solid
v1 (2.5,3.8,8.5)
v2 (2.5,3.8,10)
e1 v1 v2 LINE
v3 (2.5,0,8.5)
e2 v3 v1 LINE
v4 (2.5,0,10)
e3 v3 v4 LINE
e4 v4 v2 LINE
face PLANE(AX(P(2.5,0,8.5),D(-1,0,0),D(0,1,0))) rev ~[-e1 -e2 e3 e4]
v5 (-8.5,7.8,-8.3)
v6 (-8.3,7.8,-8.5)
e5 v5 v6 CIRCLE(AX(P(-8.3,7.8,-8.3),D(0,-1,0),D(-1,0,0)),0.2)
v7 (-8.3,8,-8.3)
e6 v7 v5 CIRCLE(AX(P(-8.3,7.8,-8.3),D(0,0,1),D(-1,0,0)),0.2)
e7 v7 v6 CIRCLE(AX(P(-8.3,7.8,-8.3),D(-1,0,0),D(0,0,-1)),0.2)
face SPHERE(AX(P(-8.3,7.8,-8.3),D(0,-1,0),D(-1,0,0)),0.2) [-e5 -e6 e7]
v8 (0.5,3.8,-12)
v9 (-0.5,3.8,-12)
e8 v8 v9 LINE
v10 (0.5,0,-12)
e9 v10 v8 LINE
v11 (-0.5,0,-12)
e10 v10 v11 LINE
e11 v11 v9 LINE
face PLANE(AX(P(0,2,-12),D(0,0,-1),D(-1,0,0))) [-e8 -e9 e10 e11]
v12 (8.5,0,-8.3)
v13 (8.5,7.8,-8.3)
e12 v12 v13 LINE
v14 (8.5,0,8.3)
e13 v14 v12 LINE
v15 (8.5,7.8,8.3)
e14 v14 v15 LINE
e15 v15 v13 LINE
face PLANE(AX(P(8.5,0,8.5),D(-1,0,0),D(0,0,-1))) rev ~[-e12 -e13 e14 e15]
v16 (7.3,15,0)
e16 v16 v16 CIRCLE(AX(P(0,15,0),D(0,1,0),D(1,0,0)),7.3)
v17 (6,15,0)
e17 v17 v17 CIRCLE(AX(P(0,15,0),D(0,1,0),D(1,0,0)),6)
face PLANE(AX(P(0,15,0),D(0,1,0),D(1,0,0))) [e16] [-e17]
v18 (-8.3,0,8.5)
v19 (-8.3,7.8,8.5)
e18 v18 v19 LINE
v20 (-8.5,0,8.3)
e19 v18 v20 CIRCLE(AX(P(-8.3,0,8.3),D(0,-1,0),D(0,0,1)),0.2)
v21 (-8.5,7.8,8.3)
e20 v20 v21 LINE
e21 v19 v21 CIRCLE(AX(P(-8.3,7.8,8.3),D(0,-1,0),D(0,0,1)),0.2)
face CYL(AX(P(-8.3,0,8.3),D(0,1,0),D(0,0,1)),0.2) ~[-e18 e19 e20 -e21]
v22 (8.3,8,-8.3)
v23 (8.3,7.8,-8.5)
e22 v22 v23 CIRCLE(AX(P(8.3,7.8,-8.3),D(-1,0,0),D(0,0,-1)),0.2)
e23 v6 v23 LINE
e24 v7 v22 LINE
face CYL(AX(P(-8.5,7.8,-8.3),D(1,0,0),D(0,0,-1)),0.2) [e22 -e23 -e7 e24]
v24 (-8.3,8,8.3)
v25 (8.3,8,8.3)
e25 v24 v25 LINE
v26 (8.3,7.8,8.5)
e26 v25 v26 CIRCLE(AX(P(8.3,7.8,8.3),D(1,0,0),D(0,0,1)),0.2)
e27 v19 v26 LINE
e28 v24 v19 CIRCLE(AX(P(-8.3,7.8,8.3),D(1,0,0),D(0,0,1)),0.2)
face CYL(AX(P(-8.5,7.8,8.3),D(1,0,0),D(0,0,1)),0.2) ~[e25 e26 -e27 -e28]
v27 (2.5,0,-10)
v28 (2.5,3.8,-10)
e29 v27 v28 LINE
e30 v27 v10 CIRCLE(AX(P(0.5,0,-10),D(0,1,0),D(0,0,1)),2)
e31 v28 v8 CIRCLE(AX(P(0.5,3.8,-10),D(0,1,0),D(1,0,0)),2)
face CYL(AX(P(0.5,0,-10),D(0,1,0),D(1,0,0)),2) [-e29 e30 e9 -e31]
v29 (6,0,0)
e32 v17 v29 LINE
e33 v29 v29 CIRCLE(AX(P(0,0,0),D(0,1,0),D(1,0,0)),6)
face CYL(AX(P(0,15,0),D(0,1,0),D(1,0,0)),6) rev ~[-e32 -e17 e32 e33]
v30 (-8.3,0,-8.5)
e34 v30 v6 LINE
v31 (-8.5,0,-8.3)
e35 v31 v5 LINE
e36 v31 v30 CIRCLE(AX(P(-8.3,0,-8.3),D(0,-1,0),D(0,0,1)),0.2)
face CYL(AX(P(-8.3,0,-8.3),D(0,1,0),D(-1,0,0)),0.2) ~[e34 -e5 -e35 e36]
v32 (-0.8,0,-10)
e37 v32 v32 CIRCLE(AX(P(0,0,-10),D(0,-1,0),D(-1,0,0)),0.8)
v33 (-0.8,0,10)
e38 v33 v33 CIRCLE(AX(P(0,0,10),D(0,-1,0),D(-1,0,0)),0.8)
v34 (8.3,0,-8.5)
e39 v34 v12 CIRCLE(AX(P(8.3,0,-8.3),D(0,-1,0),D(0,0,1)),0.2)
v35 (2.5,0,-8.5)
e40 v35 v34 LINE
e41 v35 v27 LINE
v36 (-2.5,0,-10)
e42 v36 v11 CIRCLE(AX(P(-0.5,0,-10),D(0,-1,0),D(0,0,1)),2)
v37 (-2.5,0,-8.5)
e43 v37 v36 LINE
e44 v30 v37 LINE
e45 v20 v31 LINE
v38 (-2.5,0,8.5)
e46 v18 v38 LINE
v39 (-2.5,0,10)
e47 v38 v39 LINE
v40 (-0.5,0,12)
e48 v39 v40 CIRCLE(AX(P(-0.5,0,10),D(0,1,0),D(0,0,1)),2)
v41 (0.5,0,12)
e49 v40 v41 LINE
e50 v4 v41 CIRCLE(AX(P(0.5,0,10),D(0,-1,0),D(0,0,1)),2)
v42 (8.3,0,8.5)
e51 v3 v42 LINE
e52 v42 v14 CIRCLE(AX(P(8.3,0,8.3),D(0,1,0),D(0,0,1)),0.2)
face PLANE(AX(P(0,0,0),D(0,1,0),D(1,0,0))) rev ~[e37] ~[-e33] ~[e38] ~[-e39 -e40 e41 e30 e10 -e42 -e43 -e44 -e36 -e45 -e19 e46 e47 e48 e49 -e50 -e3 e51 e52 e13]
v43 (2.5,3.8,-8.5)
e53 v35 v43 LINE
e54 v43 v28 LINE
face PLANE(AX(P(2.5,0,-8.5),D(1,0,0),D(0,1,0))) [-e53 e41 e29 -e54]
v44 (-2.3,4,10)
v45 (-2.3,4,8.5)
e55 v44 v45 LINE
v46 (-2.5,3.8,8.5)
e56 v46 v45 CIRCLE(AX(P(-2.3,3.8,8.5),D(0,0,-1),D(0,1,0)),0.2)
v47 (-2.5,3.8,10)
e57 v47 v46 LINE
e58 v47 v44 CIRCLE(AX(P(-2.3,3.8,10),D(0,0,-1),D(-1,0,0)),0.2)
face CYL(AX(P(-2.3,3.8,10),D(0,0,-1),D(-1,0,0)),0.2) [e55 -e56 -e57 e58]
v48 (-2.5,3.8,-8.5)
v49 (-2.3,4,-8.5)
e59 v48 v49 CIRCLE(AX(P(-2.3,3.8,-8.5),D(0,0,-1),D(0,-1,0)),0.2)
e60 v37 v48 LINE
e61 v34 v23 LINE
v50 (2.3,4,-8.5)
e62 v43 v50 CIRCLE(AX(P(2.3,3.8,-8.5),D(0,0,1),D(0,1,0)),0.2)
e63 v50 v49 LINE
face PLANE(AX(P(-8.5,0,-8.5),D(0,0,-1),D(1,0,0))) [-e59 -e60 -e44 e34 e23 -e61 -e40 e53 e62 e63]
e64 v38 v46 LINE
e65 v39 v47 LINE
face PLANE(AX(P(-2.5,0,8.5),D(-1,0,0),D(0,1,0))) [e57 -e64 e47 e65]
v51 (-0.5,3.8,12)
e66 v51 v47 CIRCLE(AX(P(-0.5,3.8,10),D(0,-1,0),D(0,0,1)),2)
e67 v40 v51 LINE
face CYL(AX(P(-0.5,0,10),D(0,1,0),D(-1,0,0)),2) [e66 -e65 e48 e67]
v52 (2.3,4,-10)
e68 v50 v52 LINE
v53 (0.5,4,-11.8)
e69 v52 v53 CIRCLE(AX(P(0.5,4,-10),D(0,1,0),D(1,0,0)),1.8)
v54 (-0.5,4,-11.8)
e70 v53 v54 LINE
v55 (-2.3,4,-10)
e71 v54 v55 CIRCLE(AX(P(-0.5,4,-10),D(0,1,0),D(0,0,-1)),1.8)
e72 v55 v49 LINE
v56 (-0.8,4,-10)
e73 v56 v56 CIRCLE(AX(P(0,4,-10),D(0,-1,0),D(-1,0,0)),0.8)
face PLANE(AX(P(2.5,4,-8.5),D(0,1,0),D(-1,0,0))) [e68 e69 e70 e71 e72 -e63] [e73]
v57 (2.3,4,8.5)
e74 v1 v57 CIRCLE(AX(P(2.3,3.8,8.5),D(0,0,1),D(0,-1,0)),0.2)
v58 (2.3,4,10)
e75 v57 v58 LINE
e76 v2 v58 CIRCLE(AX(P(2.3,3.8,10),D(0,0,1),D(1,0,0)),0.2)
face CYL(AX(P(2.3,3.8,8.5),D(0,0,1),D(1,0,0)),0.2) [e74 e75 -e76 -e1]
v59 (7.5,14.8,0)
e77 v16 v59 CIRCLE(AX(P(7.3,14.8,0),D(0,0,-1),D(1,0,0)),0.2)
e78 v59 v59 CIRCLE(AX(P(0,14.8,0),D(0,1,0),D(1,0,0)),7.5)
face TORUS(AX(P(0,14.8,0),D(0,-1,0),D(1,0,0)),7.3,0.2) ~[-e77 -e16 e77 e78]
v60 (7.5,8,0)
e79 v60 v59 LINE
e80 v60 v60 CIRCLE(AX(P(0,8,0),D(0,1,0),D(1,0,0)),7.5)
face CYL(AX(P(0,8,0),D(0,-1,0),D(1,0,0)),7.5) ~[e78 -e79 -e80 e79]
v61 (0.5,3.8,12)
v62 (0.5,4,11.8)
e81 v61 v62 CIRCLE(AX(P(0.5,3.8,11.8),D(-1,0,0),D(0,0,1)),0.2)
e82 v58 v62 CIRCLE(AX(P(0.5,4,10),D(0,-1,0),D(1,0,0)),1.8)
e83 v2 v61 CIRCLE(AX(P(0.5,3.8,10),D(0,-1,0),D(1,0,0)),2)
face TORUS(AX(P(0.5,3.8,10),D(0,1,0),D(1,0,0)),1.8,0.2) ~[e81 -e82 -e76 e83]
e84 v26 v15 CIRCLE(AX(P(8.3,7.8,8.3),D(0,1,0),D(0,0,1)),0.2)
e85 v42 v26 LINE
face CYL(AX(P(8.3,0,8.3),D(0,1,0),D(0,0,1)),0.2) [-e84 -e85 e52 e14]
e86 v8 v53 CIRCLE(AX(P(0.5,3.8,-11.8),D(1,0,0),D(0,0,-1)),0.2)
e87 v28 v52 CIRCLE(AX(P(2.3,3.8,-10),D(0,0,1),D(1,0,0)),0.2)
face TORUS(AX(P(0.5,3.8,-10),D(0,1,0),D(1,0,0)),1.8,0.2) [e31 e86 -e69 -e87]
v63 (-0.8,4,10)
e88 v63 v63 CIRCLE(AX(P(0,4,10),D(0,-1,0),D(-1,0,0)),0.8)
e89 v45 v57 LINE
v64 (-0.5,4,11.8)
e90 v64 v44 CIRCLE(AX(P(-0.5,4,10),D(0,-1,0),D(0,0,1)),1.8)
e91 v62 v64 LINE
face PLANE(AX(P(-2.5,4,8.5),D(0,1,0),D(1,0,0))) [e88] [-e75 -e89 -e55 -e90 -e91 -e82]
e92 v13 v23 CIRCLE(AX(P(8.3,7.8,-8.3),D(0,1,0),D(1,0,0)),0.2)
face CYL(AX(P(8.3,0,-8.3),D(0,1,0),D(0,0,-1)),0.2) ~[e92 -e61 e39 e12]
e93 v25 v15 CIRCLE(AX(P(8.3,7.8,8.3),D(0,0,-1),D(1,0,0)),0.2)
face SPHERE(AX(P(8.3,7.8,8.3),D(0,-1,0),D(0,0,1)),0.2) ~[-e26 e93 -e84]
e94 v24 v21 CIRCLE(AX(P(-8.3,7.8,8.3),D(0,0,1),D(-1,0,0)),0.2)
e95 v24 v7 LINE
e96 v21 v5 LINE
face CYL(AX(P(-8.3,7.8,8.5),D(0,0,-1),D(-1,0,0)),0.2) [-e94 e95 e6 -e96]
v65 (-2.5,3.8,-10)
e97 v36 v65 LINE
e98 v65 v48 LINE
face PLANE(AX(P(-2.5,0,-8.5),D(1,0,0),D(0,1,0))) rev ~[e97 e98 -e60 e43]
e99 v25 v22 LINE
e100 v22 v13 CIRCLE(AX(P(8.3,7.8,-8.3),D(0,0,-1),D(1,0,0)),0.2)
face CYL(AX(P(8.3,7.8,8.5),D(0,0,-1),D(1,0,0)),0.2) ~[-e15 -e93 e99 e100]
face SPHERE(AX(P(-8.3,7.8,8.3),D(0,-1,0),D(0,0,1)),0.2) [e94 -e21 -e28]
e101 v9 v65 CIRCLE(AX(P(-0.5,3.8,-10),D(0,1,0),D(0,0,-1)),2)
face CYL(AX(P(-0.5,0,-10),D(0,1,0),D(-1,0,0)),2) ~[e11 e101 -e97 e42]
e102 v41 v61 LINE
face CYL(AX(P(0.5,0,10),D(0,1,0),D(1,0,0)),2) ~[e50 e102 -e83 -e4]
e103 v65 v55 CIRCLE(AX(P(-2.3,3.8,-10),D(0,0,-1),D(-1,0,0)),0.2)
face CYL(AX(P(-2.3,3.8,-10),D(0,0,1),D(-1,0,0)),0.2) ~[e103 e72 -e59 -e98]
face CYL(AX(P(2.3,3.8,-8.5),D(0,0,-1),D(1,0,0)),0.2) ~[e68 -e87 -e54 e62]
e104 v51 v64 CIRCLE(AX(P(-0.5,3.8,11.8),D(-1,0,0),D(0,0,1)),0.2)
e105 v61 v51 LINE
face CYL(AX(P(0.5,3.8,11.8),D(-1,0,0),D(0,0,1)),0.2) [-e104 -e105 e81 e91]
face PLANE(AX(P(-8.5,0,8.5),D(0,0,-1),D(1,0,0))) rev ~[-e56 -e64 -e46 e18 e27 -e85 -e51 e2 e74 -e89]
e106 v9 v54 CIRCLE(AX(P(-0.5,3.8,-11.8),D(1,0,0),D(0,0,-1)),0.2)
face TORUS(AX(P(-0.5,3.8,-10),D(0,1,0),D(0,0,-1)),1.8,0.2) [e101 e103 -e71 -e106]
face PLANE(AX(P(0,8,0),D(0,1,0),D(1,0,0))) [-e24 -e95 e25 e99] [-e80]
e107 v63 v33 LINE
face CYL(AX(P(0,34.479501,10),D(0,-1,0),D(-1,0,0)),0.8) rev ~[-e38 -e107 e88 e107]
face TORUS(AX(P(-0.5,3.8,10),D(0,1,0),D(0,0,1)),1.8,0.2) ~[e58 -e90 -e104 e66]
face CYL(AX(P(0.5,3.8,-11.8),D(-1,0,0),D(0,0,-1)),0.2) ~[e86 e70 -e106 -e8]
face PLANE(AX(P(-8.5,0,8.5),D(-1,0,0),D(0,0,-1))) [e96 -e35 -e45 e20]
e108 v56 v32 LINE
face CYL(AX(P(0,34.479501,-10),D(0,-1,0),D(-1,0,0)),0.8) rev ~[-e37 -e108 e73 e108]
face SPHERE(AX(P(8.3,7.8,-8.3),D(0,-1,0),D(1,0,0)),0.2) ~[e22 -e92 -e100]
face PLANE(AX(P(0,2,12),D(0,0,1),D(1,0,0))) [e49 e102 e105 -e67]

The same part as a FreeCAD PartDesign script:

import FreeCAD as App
import Part
import Sketcher
from FreeCAD import Vector


def edges_at(feature, points):
    """Names of the edges that pass closest to the given points."""
    edges = feature.Shape.Edges
    near = lambda p: min(range(len(edges)), key=lambda i: edges[i].distToShape(Part.Vertex(*p))[0])
    return sorted({f"Edge{near(p) + 1}" for p in points})


def add_polygon(sketch, points):
    """Adds a closed chain of lines whose ends are joined by coincident constraints."""
    first, n = sketch.GeometryCount, len(points)
    for a, b in zip(points, points[1:] + points[:1]):
        sketch.addGeometry(Part.LineSegment(App.Vector(*a, 0), App.Vector(*b, 0)), False)
    for i in range(n):
        sketch.addConstraint(Sketcher.Constraint("Coincident", first + i, 2, first + (i + 1) % n, 1))

doc = App.newDocument("Part")
body = doc.addObject("PartDesign::Body", "Body")

sketch1 = doc.addObject("Sketcher::SketchObject", "Sketch")
body.addObject(sketch1)
sketch1.AttachmentSupport = (doc.XZ_Plane, [""])
sketch1.MapMode = "FlatFace"
add_polygon(sketch1, [(-8, -8), (-8, 8), (8, 8), (8, -8)])
sketch1.addConstraint([
    Sketcher.Constraint("Vertical", 0),
    Sketcher.Constraint("Horizontal", 1),
    Sketcher.Constraint("Vertical", 2),
    Sketcher.Constraint("Horizontal", 3),
    Sketcher.Constraint("Symmetric", 0, 2, 2, 2, -1, 1),
    Sketcher.Constraint("Equal", 3, 0),
    Sketcher.Constraint("DistanceX", 1, 1, 1, 2, 17.0),
])
pad1 = doc.addObject("PartDesign::Pad", "Pad")
body.addObject(pad1)
pad1.Profile = sketch1
pad1.Length = 8
pad1.Reversed = True

sketch2 = doc.addObject("Sketcher::SketchObject", "Sketch001")
body.addObject(sketch2)
sketch2.AttachmentSupport = (doc.XY_Plane, [""])
sketch2.MapMode = "FlatFace"
sketch2.AttachmentOffset = App.Placement(Vector(0, 0, 8.5), App.Rotation())
add_polygon(sketch2, [(-2.5, 4), (-2.5, 0), (2.5, 0), (2.5, 4)])
sketch2.addConstraint([
    Sketcher.Constraint("Vertical", 0),
    Sketcher.Constraint("Horizontal", 1),
    Sketcher.Constraint("Vertical", 2),
    Sketcher.Constraint("Horizontal", 3),
    Sketcher.Constraint("Symmetric", 0, 2, 1, 2, -1, 1),
    Sketcher.Constraint("DistanceX", 1, 1, 1, 2, 5.0),
    Sketcher.Constraint("DistanceY", 0, 2, 0, 1, 4.0),
])
pad2 = doc.addObject("PartDesign::Pad", "Pad001")
body.addObject(pad2)
pad2.Profile = sketch2
pad2.Length = 3.5

sketch3 = doc.addObject("Sketcher::SketchObject", "Sketch002")
body.addObject(sketch3)
sketch3.AttachmentSupport = (doc.XY_Plane, [""])
sketch3.MapMode = "FlatFace"
sketch3.AttachmentOffset = App.Placement(Vector(0, 0, -8.5), App.Rotation())
add_polygon(sketch3, [(2.5, 4), (2.5, 0), (-2.5, 0), (-2.5, 4)])
sketch3.addConstraint([
    Sketcher.Constraint("Vertical", 0),
    Sketcher.Constraint("Horizontal", 1),
    Sketcher.Constraint("Vertical", 2),
    Sketcher.Constraint("Horizontal", 3),
    Sketcher.Constraint("Symmetric", 0, 2, 1, 2, -1, 1),
    Sketcher.Constraint("DistanceX", 1, 2, 1, 1, 5.0),
    Sketcher.Constraint("DistanceY", 0, 2, 0, 1, 4.0),
])
pad3 = doc.addObject("PartDesign::Pad", "Pad002")
body.addObject(pad3)
pad3.Profile = sketch3
pad3.Length = 3.5
pad3.Reversed = True

sketch4 = doc.addObject("Sketcher::SketchObject", "Sketch003")
body.addObject(sketch4)
sketch4.AttachmentSupport = (doc.XZ_Plane, [""])
sketch4.MapMode = "FlatFace"
sketch4.AttachmentOffset = App.Placement(Vector(0, 0, -4), App.Rotation())
sketch4.addGeometry([
    Part.Circle(Vector(0, 10, 0), Vector(0, 0, 1), 0.8),
    Part.Circle(Vector(0, -10, 0), Vector(0, 0, 1), 0.8),
], False)
sketch4.addConstraint([
    Sketcher.Constraint("Equal", 0, 1),
    Sketcher.Constraint("Symmetric", 0, 3, 1, 3, -1, 1),
    Sketcher.Constraint("PointOnObject", 0, 3, -2),
    Sketcher.Constraint("Diameter", 0, 1.6),
    Sketcher.Constraint("DistanceY", -1, 1, 0, 3, 10.0),
])
doc.recompute()
hole = doc.addObject("PartDesign::Hole", "Hole")
body.addObject(hole)
hole.Profile = sketch4
hole.ThreadType = "None"
hole.Diameter = 1.6
hole.DepthType = "ThroughAll"
hole.Reversed = True
doc.recompute()

fillet = doc.addObject("PartDesign::Fillet", "Fillet")
body.addObject(fillet)
fillet.Base = (hole, edges_at(hole, [
    (-2.5, 2, 12),
    (2.5, 2, 12),
    (-2.5, 2, -12),
    (2.5, 2, -12),
]))
fillet.Radius = 2

sketch5 = doc.addObject("Sketcher::SketchObject", "Sketch004")
body.addObject(sketch5)
sketch5.AttachmentSupport = (doc.XZ_Plane, [""])
sketch5.MapMode = "FlatFace"
sketch5.AttachmentOffset = App.Placement(Vector(0, 0, -8), App.Rotation())
sketch5.addGeometry(Part.Circle(Vector(0, 0, 0), Vector(0, 0, 1), 8), False)
sketch5.addConstraint([
    Sketcher.Constraint("Coincident", 0, 3, -1, 1),
    Sketcher.Constraint("Diameter", 0, 15.0),
])
pad4 = doc.addObject("PartDesign::Pad", "Pad003")
body.addObject(pad4)
pad4.Profile = sketch5
pad4.Length = 7
pad4.Reversed = True

sketch6 = doc.addObject("Sketcher::SketchObject", "Sketch005")
body.addObject(sketch6)
sketch6.AttachmentSupport = (doc.XZ_Plane, [""])
sketch6.MapMode = "FlatFace"
sketch6.AttachmentOffset = App.Placement(Vector(0, 0, -15), App.Rotation())
sketch6.addGeometry(Part.Circle(Vector(0, 0, 0), Vector(0, 0, 1), 6), False)
sketch6.addConstraint([
    Sketcher.Constraint("Coincident", 0, 3, -1, 1),
    Sketcher.Constraint("Diameter", 0, 12.0),
])
pocket1 = doc.addObject("PartDesign::Pocket", "Pocket")
body.addObject(pocket1)
pocket1.Profile = sketch6
pocket1.Type = "ThroughAll"
pocket1.Reversed = True
doc.recompute()

fillet2 = doc.addObject("PartDesign::Fillet", "Fillet001")
body.addObject(fillet2)
fillet2.Base = (pocket1, edges_at(pocket1, [
    (-7.5, 15, 0),
    (8.5, 4, 8.5),
    (8.5, 4, -8.5),
    (-8.5, 4, 8.5),
    (-8.5, 4, -8.5),
    (2.5, 4, 9.25),
    (1.914, 4, 11.414),
    (-1.914, 4, 11.414),
    (-2.5, 4, 9.25),
    (0, 8, 8.5),
    (8.5, 8, 0),
    (-8.5, 8, 0),
    (0, 8, -8.5),
    (2.5, 4, -9.25),
    (1.914, 4, -11.414),
    (-1.914, 4, -11.414),
    (-2.5, 4, -9.25),
    (0, 4, 12),
    (0, 4, -12),
]))
fillet2.Radius = 0.2

doc.recompute()
